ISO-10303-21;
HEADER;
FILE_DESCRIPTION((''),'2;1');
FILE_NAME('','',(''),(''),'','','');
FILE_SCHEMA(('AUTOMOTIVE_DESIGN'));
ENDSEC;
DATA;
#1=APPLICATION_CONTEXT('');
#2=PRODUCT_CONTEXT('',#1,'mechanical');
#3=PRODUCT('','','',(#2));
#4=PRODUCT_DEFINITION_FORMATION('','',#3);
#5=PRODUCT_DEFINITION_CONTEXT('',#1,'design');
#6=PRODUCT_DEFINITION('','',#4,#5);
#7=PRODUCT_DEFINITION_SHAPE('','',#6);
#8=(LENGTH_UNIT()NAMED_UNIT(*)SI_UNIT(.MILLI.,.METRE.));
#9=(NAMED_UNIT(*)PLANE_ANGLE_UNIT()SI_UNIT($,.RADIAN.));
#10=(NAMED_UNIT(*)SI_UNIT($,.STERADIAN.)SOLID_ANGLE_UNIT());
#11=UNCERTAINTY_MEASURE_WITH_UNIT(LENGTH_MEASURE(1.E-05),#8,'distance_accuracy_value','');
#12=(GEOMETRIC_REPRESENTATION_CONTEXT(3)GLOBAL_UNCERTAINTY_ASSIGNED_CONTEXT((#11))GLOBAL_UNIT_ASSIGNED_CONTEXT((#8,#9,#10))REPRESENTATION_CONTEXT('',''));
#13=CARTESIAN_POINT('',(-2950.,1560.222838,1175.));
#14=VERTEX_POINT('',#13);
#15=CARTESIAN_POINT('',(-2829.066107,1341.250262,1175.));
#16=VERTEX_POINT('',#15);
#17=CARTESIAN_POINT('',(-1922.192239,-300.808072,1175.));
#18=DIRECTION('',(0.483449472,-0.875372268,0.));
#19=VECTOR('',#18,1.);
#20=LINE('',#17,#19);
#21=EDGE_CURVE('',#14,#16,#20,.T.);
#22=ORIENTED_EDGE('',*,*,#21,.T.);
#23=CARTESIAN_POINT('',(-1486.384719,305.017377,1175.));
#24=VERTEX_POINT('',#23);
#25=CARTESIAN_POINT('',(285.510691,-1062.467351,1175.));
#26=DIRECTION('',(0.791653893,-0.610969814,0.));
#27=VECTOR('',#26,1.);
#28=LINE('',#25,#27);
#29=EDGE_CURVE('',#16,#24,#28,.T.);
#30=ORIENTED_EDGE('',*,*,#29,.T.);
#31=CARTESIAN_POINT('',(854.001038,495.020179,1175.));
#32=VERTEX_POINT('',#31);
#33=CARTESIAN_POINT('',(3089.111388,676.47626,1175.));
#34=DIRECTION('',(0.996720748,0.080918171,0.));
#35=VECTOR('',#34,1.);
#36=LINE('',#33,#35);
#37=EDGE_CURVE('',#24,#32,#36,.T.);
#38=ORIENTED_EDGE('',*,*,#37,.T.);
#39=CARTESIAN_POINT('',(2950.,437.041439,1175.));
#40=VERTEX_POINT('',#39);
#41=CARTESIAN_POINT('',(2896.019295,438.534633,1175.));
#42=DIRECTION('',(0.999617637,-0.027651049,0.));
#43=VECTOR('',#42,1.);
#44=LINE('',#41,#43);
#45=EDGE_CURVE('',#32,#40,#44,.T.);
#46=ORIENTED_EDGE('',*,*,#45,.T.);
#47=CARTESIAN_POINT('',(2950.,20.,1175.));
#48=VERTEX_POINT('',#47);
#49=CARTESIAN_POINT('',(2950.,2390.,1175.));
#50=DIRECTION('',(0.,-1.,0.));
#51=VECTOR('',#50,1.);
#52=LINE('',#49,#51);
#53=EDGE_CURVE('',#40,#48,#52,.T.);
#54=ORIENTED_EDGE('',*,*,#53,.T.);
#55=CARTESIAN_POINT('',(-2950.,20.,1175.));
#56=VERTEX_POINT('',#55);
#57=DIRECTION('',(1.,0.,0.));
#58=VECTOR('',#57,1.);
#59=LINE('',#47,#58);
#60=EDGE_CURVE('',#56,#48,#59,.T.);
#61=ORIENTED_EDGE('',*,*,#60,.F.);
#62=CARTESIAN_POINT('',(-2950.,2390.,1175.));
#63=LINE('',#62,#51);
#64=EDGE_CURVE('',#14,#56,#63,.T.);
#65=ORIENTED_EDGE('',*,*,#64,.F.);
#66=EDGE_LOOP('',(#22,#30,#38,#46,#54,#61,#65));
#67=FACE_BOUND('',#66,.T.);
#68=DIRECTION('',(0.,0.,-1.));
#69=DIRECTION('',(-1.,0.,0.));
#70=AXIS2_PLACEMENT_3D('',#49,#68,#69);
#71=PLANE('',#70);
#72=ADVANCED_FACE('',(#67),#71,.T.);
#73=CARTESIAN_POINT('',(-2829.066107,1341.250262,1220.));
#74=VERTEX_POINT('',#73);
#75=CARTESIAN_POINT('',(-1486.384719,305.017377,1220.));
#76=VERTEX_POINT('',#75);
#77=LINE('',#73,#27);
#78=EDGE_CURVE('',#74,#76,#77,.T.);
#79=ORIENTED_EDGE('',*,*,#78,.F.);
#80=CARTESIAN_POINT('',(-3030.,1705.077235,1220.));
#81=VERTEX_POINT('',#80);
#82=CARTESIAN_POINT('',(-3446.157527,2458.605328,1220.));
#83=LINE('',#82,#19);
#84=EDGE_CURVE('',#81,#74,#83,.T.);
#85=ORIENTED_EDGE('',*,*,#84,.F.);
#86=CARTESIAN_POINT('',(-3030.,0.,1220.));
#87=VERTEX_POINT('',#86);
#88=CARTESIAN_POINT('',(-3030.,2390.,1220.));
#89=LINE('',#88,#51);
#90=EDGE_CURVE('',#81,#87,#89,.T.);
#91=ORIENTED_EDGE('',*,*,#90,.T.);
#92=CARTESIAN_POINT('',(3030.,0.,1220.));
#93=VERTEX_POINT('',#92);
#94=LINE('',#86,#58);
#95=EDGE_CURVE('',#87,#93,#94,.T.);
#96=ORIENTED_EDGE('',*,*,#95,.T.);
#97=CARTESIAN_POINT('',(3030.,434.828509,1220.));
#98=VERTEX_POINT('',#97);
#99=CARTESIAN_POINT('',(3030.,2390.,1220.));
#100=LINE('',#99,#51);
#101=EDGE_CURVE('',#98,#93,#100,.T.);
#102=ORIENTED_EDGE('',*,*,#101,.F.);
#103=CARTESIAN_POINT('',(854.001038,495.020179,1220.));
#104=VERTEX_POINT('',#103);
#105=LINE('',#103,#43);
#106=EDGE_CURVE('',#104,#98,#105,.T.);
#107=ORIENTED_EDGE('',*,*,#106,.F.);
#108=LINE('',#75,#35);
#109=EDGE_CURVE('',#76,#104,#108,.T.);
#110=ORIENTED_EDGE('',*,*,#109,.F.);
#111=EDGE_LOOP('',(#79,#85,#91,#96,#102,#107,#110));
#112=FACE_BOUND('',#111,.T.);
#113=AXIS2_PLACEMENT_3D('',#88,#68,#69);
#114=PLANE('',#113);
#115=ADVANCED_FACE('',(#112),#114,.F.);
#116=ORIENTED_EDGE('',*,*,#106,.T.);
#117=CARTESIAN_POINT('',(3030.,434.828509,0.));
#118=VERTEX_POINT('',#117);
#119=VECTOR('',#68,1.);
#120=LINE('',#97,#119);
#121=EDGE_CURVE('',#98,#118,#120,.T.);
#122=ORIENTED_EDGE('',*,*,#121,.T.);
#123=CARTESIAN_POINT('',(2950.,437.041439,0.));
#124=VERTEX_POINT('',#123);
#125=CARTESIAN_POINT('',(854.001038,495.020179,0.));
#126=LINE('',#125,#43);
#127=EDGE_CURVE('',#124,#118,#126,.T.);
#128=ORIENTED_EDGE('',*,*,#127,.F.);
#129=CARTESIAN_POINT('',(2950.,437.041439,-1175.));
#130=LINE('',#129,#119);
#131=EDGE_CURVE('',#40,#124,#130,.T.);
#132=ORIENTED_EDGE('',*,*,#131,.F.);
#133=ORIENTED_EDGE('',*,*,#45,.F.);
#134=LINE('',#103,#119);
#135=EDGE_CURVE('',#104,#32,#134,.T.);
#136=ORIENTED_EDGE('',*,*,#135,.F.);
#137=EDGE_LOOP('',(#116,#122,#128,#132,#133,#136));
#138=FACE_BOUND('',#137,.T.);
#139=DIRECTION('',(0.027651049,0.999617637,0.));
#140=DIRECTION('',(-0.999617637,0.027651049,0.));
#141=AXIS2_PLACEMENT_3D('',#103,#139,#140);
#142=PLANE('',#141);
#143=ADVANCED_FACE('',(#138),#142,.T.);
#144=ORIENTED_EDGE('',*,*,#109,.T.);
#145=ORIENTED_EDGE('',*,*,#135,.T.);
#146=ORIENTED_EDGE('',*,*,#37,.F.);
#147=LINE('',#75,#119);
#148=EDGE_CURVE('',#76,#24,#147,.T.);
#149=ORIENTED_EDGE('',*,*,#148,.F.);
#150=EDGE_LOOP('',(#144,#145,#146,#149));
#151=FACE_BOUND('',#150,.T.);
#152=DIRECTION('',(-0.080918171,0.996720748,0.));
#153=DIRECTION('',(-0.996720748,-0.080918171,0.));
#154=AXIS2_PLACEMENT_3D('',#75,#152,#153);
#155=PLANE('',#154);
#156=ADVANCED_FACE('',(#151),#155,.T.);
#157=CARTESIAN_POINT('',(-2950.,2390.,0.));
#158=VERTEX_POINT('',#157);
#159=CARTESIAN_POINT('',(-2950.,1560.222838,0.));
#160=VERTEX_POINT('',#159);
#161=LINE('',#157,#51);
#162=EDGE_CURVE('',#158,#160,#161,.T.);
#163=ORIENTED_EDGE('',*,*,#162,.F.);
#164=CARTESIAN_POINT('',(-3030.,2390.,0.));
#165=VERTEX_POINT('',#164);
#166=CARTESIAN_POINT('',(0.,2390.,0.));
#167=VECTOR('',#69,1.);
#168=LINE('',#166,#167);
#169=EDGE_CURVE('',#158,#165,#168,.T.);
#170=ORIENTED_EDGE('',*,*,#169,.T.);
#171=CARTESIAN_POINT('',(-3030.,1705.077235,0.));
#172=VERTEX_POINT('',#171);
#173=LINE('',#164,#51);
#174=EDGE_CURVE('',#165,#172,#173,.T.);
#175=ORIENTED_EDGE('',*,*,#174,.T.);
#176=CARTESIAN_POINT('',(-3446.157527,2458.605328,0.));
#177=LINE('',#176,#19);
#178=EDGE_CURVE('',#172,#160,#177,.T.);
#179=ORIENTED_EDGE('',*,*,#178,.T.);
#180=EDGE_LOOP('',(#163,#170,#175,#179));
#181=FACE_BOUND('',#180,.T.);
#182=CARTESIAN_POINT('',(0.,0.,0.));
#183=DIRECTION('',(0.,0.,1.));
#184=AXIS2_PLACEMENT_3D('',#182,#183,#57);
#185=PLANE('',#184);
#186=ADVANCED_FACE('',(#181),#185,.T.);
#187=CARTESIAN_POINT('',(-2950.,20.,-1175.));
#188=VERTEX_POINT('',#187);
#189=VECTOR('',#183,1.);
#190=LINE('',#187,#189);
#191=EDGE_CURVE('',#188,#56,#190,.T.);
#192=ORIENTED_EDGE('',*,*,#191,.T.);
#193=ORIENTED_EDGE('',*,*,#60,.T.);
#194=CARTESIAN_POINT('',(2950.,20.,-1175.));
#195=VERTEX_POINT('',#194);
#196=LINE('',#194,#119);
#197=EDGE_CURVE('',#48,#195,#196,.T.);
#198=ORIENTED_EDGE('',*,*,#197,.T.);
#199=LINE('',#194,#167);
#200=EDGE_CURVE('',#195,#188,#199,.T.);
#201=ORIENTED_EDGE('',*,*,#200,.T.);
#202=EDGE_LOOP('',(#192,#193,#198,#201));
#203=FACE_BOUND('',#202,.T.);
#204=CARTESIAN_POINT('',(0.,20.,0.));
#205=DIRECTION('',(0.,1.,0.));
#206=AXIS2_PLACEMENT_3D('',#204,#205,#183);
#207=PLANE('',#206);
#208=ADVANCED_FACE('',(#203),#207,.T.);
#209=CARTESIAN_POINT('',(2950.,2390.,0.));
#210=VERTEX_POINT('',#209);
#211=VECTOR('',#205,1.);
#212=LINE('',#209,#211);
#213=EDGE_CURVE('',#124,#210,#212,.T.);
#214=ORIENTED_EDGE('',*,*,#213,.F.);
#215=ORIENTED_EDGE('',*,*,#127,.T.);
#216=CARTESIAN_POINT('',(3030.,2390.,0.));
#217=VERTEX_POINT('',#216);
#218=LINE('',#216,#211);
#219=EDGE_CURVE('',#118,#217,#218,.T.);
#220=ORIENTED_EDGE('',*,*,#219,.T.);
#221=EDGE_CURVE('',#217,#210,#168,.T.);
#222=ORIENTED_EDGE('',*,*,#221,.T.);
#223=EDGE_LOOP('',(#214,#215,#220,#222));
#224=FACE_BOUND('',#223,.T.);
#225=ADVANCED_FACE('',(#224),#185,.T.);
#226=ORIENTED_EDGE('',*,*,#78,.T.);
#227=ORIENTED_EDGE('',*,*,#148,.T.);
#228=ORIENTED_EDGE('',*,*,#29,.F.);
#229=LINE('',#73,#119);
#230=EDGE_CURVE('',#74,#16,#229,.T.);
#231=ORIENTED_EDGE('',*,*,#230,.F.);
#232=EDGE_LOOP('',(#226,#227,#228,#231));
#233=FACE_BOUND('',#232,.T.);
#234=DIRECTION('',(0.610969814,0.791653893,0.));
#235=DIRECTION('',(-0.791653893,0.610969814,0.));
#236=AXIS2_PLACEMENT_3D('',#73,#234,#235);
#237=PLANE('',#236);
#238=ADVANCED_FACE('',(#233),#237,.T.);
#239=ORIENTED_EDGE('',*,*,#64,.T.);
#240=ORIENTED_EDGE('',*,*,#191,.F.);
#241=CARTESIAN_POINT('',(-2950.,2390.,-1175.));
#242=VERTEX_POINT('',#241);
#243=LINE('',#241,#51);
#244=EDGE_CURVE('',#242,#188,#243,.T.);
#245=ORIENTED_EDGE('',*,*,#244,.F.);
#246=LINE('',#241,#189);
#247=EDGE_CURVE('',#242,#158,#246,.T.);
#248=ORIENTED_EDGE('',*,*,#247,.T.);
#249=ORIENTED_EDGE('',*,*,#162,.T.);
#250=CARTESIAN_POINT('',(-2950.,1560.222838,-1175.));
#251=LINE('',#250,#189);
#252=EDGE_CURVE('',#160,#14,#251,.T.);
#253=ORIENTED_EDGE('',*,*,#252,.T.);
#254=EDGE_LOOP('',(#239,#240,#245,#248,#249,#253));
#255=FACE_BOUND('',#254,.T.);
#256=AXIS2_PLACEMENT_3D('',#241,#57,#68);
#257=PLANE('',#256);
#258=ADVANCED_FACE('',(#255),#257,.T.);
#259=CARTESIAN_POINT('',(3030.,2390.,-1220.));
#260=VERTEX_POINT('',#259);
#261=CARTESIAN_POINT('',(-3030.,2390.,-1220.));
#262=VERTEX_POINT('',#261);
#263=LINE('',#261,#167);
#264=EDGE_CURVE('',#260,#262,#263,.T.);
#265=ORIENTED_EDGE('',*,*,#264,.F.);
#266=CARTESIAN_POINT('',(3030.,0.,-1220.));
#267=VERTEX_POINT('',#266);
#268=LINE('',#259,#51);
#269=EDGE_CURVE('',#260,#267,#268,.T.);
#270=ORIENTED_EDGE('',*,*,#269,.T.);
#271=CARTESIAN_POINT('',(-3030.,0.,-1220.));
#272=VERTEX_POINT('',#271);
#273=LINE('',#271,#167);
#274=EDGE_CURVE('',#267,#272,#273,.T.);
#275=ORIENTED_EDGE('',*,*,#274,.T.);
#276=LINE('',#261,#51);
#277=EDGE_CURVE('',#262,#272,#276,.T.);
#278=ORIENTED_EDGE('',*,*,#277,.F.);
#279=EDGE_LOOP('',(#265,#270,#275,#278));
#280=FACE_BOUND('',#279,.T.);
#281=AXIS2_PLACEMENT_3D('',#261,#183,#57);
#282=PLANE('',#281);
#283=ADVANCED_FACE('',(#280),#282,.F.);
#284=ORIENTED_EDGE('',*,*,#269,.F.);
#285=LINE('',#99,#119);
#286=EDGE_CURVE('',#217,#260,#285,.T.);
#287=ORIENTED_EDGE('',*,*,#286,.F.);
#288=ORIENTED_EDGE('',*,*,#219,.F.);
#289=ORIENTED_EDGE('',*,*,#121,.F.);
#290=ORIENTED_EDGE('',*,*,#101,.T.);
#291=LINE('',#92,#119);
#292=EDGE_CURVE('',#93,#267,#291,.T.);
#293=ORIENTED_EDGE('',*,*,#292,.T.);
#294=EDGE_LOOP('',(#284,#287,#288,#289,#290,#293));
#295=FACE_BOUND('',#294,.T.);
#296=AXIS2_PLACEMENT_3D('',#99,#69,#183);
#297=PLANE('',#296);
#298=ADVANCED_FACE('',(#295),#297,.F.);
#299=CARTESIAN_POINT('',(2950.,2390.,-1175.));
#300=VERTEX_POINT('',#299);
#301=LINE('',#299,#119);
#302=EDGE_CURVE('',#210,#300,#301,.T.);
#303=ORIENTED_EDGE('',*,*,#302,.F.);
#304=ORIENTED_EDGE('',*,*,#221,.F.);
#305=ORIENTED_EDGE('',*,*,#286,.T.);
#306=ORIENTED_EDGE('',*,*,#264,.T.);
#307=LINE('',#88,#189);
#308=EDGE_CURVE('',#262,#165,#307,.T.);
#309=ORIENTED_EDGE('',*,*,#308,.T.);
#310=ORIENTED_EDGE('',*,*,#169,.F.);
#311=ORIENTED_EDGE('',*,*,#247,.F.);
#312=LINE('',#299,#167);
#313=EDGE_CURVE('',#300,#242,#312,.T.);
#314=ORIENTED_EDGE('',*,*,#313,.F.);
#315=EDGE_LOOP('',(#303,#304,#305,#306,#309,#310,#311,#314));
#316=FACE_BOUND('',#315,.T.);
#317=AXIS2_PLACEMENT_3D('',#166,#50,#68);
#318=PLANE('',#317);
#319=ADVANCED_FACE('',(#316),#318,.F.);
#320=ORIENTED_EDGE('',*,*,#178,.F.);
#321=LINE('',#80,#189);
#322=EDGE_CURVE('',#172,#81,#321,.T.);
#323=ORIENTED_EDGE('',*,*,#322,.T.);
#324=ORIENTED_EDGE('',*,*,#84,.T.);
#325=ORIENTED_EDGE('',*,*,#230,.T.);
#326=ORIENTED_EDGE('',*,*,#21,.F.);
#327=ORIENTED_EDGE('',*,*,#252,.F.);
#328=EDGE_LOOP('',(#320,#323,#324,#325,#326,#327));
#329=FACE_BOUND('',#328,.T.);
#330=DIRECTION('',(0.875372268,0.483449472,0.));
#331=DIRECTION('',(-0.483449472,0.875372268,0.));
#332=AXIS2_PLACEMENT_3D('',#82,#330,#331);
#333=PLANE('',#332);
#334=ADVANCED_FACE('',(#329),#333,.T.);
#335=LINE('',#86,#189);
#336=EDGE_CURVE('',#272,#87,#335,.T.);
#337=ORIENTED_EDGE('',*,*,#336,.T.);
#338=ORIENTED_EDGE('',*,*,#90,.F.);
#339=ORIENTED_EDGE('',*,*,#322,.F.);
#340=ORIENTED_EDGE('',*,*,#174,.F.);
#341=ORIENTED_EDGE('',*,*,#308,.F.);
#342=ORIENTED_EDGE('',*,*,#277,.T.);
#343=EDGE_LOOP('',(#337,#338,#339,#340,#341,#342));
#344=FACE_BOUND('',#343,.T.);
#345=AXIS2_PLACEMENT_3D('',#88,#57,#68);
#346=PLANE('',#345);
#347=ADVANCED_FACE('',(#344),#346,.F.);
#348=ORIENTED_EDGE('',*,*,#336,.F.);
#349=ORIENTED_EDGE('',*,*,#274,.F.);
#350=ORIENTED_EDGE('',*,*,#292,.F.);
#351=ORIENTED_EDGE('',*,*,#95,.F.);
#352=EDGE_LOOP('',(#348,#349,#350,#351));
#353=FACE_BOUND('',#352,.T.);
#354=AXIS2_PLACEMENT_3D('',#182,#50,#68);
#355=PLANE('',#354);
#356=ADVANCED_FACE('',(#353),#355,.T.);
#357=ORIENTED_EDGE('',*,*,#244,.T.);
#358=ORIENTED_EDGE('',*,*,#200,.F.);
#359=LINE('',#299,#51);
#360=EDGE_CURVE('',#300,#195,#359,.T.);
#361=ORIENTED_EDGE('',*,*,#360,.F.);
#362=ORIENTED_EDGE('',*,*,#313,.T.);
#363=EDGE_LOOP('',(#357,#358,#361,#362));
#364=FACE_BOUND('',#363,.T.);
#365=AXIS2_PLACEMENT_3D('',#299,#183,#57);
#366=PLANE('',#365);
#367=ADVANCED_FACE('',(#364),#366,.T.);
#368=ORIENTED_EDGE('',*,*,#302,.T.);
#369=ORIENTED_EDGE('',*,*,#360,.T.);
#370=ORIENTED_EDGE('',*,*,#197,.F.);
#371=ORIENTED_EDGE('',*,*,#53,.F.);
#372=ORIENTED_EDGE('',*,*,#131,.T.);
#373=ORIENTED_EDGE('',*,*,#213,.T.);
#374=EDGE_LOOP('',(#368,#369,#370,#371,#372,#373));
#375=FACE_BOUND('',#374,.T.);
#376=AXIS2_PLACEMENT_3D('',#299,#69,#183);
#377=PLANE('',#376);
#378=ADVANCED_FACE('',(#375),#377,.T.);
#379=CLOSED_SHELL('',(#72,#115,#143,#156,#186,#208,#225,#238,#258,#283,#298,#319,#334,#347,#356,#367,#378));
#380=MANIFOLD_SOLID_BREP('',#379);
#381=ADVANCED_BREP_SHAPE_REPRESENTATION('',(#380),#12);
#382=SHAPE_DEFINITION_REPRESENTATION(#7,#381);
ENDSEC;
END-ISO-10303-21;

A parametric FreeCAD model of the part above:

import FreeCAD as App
import Part
import Sketcher

V = App.Vector


def add_polygon(sketch, points):
    """Adds a closed chain of lines whose ends are joined by coincident constraints."""
    first, n = sketch.GeometryCount, len(points)
    for a, b in zip(points, points[1:] + points[:1]):
        sketch.addGeometry(Part.LineSegment(App.Vector(*a, 0), App.Vector(*b, 0)), False)
    for i in range(n):
        sketch.addConstraint(Sketcher.Constraint("Coincident", first + i, 2, first + (i + 1) % n, 1))

doc = App.newDocument("Part")
body = doc.addObject("PartDesign::Body", "Body")

# Sketch on XZ plane
sketch1 = body.newObject("Sketcher::SketchObject", "Sketch")
sketch1.AttachmentSupport = (doc.getObject("XZ_Plane"), [""])
sketch1.MapMode = "FlatFace"
add_polygon(sketch1, [(-3030, -1220), (-3030, 1220), (3030, 1220), (3030, -1220)])  # lines 0-3
add_polygon(sketch1, [(2950, 1175), (-2950, 1175), (-2950, -1175), (2950, -1175)])  # lines 4-7
sketch1.addConstraint([
    Sketcher.Constraint("Vertical", 0),
    Sketcher.Constraint("Horizontal", 1),
    Sketcher.Constraint("Vertical", 2),
    Sketcher.Constraint("Horizontal", 3),
    Sketcher.Constraint("Horizontal", 4),
    Sketcher.Constraint("Vertical", 5),
    Sketcher.Constraint("Horizontal", 6),
    Sketcher.Constraint("Vertical", 7),
    Sketcher.Constraint("Symmetric", 0, 2, 2, 2, -1, 1),
    Sketcher.Constraint("Symmetric", 4, 2, 6, 2, -1, 1),
    Sketcher.Constraint("DistanceX", 1, 1, 1, 2, 6060.0),
    Sketcher.Constraint("DistanceX", 4, 2, 4, 1, 5900.0),
    Sketcher.Constraint("DistanceY", 0, 1, 0, 2, 2440.0),
    Sketcher.Constraint("DistanceY", 5, 2, 5, 1, 2350.0),
])
pad1 = body.newObject("PartDesign::Pad", "Pad")
pad1.Profile = sketch1
pad1.Length = 2390
pad1.Reversed = True

# Sketch on XY plane
sketch2 = body.newObject("Sketcher::SketchObject", "Sketch001")
sketch2.AttachmentSupport = (doc.getObject("XY_Plane"), [""])
sketch2.MapMode = "FlatFace"
add_polygon(sketch2, [(-2829, 1341), (-1486, 305), (854, 495), (4288, 400), (4288, 2459), (-3446, 2459)])  # lines 0-5
sketch2.addConstraint([
    Sketcher.Constraint("Vertical", 3),
    Sketcher.Constraint("Horizontal", 4),
    Sketcher.Constraint("DistanceY", 3, 1, 3, 2, 2058.58655),
    Sketcher.Constraint("DistanceY", 0, 2, 1, 2, 190.002802),
    Sketcher.Constraint("DistanceY", 2, 2, 1, 2, 95.001401),
    Sketcher.Constraint("Distance", 0, 1696.04596),
    Sketcher.Constraint("Distance", 1, 2348.085722),
    Sketcher.Constraint("Distance", 5, 1276.43416),
    Sketcher.Constraint("DistanceX", 4, 2, 4, 1, 7734.569862),
    Sketcher.Constraint("DistanceX", 0, 2, -1, 1, 1486.384719),
    Sketcher.Constraint("DistanceY", -1, 1, 1, 2, 495.020179),
    Sketcher.Constraint("DistanceY", -1, 1, 5, 2, 1341.250262),
])
pocket1 = body.newObject("PartDesign::Pocket", "Pocket")
pocket1.Profile = sketch2
pocket1.Type = "ThroughAll"
pocket1.Reversed = True

# Sketch on XZ plane
sketch3 = body.newObject("Sketcher::SketchObject", "Sketch002")
sketch3.AttachmentSupport = (doc.getObject("XZ_Plane"), [""])
sketch3.MapMode = "FlatFace"
add_polygon(sketch3, [(-3030, 1220), (-3030, -1220), (3030, -1220), (3030, 1220)])  # lines 0-3
sketch3.addConstraint([
    Sketcher.Constraint("Vertical", 0),
    Sketcher.Constraint("Horizontal", 1),
    Sketcher.Constraint("Vertical", 2),
    Sketcher.Constraint("Horizontal", 3),
    Sketcher.Constraint("Symmetric", 0, 2, 2, 2, -1, 1),
    Sketcher.Constraint("DistanceX", 1, 1, 1, 2, 6060.0),
    Sketcher.Constraint("DistanceY", 0, 2, 0, 1, 2440.0),
])
pad2 = body.newObject("PartDesign::Pad", "Pad001")
pad2.Profile = sketch3
pad2.Length = 20
pad2.Reversed = True

doc.recompute()
